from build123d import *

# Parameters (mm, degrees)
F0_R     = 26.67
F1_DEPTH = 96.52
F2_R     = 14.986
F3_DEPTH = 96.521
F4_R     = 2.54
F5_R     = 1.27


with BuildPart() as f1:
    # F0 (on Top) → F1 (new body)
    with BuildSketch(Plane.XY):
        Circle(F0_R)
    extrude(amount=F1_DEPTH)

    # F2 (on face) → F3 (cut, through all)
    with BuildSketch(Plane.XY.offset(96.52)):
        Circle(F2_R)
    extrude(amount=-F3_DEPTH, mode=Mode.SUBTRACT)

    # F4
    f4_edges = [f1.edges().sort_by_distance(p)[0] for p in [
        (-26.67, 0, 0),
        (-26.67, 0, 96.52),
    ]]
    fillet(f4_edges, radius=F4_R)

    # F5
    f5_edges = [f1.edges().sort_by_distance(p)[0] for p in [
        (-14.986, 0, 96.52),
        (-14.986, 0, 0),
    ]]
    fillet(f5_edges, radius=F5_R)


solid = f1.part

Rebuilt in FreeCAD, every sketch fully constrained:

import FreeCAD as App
import Part
import Sketcher
Q = App.Units.Quantity


def edges_at(feature, points):
    """Names of the edges that pass closest to the given points."""
    edges = feature.Shape.Edges
    near = lambda p: min(range(len(edges)), key=lambda i: edges[i].distToShape(Part.Vertex(*p))[0])
    return sorted({f"Edge{near(p) + 1}" for p in points})

doc = App.newDocument("Part")
body = doc.addObject("PartDesign::Body", "Body")

sketch1 = body.newObject("Sketcher::SketchObject", "Sketch")
sketch1.AttachmentSupport = (doc.getObject("XY_Plane"), [""])
sketch1.MapMode = "FlatFace"
sketch1.addGeometry(Part.Circle(App.Vector(0, 0, 0), App.Vector(0, 0, 1), 27), False)
sketch1.addConstraint(Sketcher.Constraint("Coincident", 0, 3, -1, 1))
sketch1.addConstraint(Sketcher.Constraint("Diameter", 0, Q("2.1 in")))
pad1 = body.newObject("PartDesign::Pad", "Pad")
pad1.Profile = sketch1
pad1.Length = Q("3.8 in")

sketch2 = body.newObject("Sketcher::SketchObject", "Sketch001")
sketch2.AttachmentSupport = (doc.getObject("XY_Plane"), [""])
sketch2.MapMode = "FlatFace"
sketch2.AttachmentOffset = App.Placement(App.Vector(0, 0, 3.8 * 25.4), App.Rotation())
sketch2.addGeometry(Part.Circle(App.Vector(0, 0, 0), App.Vector(0, 0, 1), 15), False)
sketch2.addConstraint(Sketcher.Constraint("Coincident", 0, 3, -1, 1))
sketch2.addConstraint(Sketcher.Constraint("Diameter", 0, Q("1.18 in")))
pocket1 = body.newObject("PartDesign::Pocket", "Pocket")
pocket1.Profile = sketch2
pocket1.Type = "ThroughAll"
doc.recompute()

fillet = body.newObject("PartDesign::Fillet", "Fillet")
fillet.Base = (pocket1, edges_at(pocket1, [(-26.67, 0, 0), (-26.67, 0, 96.52)]))
fillet.Radius = Q("0.1 in")
doc.recompute()

fillet2 = body.newObject("PartDesign::Fillet", "Fillet001")
fillet2.Base = (fillet, edges_at(fillet, [(-14.986, 0, 96.52), (-14.986, 0, 0)]))
fillet2.Radius = Q("0.05 in")

doc.recompute()
